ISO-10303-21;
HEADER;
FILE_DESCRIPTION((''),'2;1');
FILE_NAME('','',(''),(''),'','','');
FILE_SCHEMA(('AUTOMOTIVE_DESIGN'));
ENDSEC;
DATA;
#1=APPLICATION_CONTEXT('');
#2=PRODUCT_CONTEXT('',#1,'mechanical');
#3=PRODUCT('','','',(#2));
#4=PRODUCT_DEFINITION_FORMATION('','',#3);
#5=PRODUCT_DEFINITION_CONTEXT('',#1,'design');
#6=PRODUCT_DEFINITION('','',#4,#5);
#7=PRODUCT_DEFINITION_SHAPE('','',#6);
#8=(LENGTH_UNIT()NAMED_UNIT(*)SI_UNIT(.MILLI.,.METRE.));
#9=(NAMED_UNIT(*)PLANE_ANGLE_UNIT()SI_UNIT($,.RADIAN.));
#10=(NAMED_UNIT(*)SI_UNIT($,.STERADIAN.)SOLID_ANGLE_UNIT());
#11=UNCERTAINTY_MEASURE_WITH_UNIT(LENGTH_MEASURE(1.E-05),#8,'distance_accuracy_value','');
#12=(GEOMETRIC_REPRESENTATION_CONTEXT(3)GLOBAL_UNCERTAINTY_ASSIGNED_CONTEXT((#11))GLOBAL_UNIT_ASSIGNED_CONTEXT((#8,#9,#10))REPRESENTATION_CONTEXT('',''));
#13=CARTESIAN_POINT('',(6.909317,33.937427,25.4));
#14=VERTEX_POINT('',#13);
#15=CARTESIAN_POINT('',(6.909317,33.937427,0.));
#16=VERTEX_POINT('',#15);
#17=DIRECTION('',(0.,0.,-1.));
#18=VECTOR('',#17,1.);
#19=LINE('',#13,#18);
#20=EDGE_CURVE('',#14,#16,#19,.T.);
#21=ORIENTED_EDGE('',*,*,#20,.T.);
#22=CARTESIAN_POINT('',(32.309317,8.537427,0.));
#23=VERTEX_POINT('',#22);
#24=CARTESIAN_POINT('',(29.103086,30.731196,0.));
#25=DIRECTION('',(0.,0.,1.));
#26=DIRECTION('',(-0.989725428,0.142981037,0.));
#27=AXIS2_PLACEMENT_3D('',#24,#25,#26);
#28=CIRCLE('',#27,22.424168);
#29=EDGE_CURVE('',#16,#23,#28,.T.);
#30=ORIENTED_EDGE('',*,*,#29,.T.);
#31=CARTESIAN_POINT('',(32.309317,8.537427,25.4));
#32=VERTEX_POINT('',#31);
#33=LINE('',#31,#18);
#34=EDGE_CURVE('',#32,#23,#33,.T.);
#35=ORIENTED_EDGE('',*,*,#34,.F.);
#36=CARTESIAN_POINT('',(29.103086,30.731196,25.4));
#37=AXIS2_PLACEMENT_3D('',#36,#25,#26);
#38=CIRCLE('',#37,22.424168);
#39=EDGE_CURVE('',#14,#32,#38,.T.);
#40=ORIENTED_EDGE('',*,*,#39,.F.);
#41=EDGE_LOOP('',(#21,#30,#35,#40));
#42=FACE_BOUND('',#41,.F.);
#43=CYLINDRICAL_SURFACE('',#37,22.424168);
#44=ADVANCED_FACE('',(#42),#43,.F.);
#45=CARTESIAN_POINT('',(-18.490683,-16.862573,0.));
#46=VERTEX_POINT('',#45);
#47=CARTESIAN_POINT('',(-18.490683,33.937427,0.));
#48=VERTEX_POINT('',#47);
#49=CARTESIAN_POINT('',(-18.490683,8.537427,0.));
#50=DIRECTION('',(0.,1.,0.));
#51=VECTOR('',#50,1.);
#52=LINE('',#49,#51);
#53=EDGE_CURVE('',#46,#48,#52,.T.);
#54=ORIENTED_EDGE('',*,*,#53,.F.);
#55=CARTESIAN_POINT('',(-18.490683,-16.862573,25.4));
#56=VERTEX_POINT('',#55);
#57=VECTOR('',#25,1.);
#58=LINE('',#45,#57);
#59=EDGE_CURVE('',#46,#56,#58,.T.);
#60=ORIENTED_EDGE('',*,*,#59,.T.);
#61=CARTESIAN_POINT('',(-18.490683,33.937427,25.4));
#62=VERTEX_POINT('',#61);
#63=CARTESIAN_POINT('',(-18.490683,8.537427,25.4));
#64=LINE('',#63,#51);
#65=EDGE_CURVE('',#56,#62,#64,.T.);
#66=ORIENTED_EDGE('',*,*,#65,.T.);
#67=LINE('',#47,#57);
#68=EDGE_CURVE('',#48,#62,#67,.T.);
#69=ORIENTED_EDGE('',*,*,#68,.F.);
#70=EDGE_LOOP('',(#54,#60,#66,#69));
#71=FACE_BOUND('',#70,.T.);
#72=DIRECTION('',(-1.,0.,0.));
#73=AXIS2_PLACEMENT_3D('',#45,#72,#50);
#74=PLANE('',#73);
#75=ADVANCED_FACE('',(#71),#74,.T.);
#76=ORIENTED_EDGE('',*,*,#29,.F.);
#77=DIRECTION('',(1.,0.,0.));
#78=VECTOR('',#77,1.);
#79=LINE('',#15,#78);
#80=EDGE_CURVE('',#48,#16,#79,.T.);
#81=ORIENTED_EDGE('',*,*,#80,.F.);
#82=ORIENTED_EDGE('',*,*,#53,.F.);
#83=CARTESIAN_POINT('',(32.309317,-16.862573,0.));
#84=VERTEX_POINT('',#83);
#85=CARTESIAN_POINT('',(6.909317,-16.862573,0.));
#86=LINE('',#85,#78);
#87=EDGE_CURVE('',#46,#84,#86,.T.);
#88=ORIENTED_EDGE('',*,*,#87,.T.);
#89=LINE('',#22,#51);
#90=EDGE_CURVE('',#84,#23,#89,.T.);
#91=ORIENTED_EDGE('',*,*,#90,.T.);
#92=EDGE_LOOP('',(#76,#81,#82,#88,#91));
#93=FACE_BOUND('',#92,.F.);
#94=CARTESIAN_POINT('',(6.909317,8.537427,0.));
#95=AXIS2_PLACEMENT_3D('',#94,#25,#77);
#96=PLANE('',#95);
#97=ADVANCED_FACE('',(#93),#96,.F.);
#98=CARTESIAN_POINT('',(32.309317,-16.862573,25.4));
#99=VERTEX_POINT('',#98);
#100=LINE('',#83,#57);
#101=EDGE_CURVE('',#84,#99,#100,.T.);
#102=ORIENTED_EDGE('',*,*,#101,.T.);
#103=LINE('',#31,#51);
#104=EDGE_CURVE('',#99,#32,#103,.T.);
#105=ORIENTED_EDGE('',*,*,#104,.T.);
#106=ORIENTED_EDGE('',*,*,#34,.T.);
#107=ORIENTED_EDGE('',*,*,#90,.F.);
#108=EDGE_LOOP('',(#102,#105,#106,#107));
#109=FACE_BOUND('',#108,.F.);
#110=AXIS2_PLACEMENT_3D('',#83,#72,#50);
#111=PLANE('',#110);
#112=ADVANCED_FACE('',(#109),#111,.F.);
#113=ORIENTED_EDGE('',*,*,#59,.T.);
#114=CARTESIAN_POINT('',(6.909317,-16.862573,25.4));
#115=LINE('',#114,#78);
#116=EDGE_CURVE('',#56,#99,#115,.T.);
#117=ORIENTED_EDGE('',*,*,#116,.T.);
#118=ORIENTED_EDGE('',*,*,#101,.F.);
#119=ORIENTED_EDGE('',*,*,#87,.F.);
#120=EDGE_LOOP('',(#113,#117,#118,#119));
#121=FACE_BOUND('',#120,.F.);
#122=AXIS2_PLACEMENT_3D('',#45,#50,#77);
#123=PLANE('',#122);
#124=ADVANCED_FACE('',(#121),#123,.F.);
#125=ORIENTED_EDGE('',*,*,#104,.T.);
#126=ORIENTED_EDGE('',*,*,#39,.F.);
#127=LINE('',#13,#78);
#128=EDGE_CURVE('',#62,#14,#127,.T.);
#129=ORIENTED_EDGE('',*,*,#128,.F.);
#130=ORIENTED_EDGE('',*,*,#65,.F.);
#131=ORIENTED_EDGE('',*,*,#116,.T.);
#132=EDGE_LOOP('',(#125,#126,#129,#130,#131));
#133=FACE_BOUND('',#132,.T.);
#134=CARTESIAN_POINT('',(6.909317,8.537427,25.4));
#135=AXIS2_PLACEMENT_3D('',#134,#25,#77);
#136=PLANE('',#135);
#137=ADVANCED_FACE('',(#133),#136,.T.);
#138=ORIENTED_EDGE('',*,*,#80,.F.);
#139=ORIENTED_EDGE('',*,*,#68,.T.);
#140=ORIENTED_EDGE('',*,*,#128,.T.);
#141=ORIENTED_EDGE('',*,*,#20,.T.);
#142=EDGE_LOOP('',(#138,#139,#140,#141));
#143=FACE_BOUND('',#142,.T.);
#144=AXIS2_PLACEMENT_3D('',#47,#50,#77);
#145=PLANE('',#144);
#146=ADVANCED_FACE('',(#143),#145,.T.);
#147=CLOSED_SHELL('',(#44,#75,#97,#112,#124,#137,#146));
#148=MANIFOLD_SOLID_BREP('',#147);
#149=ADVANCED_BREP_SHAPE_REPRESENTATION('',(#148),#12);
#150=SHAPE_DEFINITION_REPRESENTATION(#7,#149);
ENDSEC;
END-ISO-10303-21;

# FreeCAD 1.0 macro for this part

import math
import FreeCAD as App
import Part
import Sketcher
from FreeCAD import Vector
Q = App.Units.Quantity

doc = App.newDocument("Part")
body = doc.addObject("PartDesign::Body", "Body")

# Sketch on XY plane
sketch1 = doc.addObject("Sketcher::SketchObject", "Sketch")
body.addObject(sketch1)
sketch1.AttachmentSupport = (doc.XY_Plane, [""])
sketch1.MapMode = "FlatFace"
sketch1.addGeometry(Part.LineSegment(Vector(-18.490683, 33.937427, 0), Vector(-18.490683, -16.862573, 0)), False)
sketch1.addGeometry(Part.LineSegment(Vector(-18.490683, -16.862573, 0), Vector(32.309317, -16.862573, 0)), False)
sketch1.addGeometry(Part.LineSegment(Vector(32.309317, -16.862573, 0), Vector(32.309317, 33.937427, 0)), False)
sketch1.addGeometry(Part.LineSegment(Vector(32.309317, 33.937427, 0), Vector(-18.490683, 33.937427, 0)), False)
sketch1.addConstraint(Sketcher.Constraint("Coincident", 0, 2, 1, 1))
sketch1.addConstraint(Sketcher.Constraint("Coincident", 1, 2, 2, 1))
sketch1.addConstraint(Sketcher.Constraint("Coincident", 2, 2, 3, 1))
sketch1.addConstraint(Sketcher.Constraint("Coincident", 3, 2, 0, 1))
sketch1.addConstraint(Sketcher.Constraint("Vertical", 0))
sketch1.addConstraint(Sketcher.Constraint("Horizontal", 1))
sketch1.addConstraint(Sketcher.Constraint("Vertical", 2))
sketch1.addConstraint(Sketcher.Constraint("Horizontal", 3))
sketch1.addConstraint(Sketcher.Constraint("Equal", 3, 0))
sketch1.addConstraint(Sketcher.Constraint("DistanceX", 1, 1, 1, 2, Q("2 in")))
sketch1.addConstraint(Sketcher.Constraint("DistanceX", 0, 2, -1, 1, 18.490683))
sketch1.addConstraint(Sketcher.Constraint("DistanceY", 0, 2, -1, 1, 16.862573))
pad1 = doc.addObject("PartDesign::Pad", "Pad")
body.addObject(pad1)
pad1.Profile = sketch1
pad1.Length = Q("1 in")

# Sketch on XY plane
sketch2 = doc.addObject("Sketcher::SketchObject", "Sketch001")
body.addObject(sketch2)
sketch2.AttachmentSupport = (doc.XY_Plane, [""])
sketch2.MapMode = "FlatFace"
sketch2.AttachmentOffset = App.Placement(Vector(0, 0, 1 * 25.4), App.Rotation())
sketch2.addGeometry(Part.ArcOfCircle(Part.Circle(Vector(29.103086, 30.731196, 0), Vector(0, 0, 1), 22.424168), math.radians(171.779617), math.radians(278.220383)), False)
sketch2.addGeometry(Part.LineSegment(Vector(32.309317, 8.537427, 0), Vector(32.309317, 33.937427, 0)), False)
sketch2.addGeometry(Part.LineSegment(Vector(32.309317, 33.937427, 0), Vector(6.909317, 33.937427, 0)), False)
sketch2.addConstraint(Sketcher.Constraint("Coincident", 0, 2, 1, 1))
sketch2.addConstraint(Sketcher.Constraint("Coincident", 1, 2, 2, 1))
sketch2.addConstraint(Sketcher.Constraint("Coincident", 2, 2, 0, 1))
sketch2.addConstraint(Sketcher.Constraint("Vertical", 1))
sketch2.addConstraint(Sketcher.Constraint("Horizontal", 2))
sketch2.addConstraint(Sketcher.Constraint("Equal", 2, 1))
sketch2.addConstraint(Sketcher.Constraint("DistanceX", 2, 2, 2, 1, Q("1 in")))
sketch2.addConstraint(Sketcher.Constraint("Radius", 0, 22.424168))
sketch2.addConstraint(Sketcher.Constraint("DistanceX", -1, 1, 0, 3, 29.103086))
sketch2.addConstraint(Sketcher.Constraint("DistanceY", -1, 1, 0, 3, 30.731196))
pocket1 = doc.addObject("PartDesign::Pocket", "Pocket")
body.addObject(pocket1)
pocket1.Profile = sketch2
pocket1.Length = Q("1 in")

doc.recompute()
